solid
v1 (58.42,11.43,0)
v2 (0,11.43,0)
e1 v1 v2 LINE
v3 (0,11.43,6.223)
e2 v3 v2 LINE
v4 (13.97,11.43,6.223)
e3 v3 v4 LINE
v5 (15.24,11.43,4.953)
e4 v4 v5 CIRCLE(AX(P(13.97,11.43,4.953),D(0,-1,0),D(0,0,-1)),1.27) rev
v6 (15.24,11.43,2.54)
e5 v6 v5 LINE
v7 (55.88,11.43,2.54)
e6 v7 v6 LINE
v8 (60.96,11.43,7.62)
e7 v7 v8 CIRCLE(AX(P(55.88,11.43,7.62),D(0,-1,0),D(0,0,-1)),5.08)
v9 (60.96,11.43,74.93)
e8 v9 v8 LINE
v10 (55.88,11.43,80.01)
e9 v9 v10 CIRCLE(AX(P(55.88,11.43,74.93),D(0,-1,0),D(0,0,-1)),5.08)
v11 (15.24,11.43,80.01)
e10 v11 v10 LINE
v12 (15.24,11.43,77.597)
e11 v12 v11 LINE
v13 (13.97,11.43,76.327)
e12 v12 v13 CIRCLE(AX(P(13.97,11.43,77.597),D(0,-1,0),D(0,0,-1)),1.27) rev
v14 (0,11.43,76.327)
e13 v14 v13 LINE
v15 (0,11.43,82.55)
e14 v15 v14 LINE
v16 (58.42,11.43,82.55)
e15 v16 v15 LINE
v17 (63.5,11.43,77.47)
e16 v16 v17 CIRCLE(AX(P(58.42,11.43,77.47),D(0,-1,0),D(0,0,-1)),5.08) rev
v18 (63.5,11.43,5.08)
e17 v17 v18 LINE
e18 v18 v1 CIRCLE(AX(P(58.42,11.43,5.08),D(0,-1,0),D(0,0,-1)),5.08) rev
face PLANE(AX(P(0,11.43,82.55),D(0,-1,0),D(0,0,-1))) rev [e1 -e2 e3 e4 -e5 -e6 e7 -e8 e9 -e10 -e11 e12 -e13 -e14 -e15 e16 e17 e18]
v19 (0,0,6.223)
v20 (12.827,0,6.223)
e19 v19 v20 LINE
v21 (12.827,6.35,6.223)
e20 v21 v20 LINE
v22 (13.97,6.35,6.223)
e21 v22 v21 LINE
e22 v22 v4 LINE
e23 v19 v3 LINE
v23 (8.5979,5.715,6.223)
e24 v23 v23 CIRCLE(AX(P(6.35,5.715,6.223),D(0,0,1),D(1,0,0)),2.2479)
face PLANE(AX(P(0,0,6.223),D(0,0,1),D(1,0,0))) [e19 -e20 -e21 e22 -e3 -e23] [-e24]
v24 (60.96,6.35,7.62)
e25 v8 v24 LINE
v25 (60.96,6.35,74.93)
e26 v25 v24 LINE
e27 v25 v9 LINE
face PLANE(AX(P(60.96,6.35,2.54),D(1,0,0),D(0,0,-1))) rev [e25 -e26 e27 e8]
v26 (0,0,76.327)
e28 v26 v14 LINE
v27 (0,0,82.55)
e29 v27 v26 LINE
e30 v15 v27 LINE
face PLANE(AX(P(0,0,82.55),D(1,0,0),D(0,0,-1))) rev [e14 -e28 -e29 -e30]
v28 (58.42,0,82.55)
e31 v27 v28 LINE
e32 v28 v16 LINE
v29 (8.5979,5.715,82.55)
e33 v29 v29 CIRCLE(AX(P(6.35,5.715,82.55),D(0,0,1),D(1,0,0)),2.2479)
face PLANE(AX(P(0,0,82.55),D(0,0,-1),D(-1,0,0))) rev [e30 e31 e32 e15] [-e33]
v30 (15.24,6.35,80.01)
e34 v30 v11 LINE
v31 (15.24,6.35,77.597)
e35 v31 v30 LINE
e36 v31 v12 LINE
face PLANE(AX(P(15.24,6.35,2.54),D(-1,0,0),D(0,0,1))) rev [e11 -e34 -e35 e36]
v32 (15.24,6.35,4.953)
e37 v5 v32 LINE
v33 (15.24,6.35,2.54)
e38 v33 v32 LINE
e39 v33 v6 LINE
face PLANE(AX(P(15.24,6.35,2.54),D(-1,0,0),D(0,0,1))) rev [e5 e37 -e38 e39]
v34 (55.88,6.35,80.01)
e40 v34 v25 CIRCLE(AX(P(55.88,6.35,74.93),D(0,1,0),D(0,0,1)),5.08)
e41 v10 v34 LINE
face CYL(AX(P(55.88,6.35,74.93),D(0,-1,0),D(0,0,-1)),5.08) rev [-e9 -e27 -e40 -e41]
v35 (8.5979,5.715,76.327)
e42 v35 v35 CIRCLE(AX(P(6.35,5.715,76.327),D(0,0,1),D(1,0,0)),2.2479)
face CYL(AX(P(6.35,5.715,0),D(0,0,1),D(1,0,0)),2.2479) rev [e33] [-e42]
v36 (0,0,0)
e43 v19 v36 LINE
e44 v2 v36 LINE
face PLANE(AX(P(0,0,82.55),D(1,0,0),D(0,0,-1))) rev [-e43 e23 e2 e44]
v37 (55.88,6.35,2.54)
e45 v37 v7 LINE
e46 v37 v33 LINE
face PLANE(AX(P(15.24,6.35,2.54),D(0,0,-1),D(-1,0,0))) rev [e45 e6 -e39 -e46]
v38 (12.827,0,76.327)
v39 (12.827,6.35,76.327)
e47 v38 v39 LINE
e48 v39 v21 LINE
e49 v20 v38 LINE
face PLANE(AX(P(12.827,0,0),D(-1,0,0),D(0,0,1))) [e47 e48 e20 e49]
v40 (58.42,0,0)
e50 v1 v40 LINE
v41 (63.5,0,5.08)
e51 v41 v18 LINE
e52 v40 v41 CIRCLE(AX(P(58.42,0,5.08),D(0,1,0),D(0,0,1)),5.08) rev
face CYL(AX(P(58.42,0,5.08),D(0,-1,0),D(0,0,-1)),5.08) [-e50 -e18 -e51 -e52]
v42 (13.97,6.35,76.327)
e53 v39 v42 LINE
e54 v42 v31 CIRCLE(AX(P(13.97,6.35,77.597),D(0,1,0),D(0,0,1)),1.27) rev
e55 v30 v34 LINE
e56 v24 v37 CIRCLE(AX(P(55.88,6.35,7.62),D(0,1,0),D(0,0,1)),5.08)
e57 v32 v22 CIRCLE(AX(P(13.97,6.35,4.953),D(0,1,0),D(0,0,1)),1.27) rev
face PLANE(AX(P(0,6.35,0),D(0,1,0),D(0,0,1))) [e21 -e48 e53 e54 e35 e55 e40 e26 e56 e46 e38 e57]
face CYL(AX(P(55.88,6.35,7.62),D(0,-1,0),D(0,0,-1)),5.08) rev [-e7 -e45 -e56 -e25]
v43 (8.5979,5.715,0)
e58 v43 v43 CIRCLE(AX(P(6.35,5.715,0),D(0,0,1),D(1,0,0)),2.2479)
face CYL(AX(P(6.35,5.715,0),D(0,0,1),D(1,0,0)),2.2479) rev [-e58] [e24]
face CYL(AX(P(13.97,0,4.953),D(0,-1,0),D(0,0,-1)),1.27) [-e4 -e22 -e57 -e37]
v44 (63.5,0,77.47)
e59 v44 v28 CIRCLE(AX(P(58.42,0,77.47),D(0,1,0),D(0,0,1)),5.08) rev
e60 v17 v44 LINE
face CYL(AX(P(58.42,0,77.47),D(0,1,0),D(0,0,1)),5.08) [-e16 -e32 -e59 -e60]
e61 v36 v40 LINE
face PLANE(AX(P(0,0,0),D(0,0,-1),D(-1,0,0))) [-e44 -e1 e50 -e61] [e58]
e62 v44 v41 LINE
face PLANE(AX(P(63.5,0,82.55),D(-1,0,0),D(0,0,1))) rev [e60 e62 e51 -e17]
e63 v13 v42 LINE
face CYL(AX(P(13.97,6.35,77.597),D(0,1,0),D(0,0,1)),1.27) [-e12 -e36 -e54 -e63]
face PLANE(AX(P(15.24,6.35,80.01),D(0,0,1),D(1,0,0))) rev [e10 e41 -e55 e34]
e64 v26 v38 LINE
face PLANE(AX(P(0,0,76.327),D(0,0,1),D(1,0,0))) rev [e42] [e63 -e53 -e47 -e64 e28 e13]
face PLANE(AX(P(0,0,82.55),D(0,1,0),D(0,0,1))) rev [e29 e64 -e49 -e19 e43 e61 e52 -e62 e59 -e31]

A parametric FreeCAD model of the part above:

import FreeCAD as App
import Part
import Sketcher

V = App.Vector
Q = App.Units.Quantity


def edges_at(feature, points):
    """Names of the edges that pass closest to the given points."""
    edges = feature.Shape.Edges
    near = lambda p: min(range(len(edges)), key=lambda i: edges[i].distToShape(Part.Vertex(*p))[0])
    return sorted({f"Edge{near(p) + 1}" for p in points})

doc = App.newDocument("Part")
body = doc.addObject("PartDesign::Body", "Body")

sketch1 = body.newObject("Sketcher::SketchObject", "Sketch")
sketch1.AttachmentSupport = (doc.getObject("XY_Plane"), [""])
sketch1.MapMode = "FlatFace"
sketch1.addGeometry([
    Part.LineSegment(V(0, 11, 0), V(0, 0, 0)),
    Part.LineSegment(V(0, 0, 0), V(64, 0, 0)),
    Part.LineSegment(V(64, 0, 0), V(64, 11, 0)),
    Part.LineSegment(V(64, 11, 0), V(0, 11, 0)),
], False)
sketch1.addConstraint([
    Sketcher.Constraint("Coincident", 0, 2, 1, 1),
    Sketcher.Constraint("Coincident", 1, 2, 2, 1),
    Sketcher.Constraint("Coincident", 2, 2, 3, 1),
    Sketcher.Constraint("Coincident", 3, 2, 0, 1),
    Sketcher.Constraint("Vertical", 0),
    Sketcher.Constraint("Horizontal", 1),
    Sketcher.Constraint("Vertical", 2),
    Sketcher.Constraint("Horizontal", 3),
    Sketcher.Constraint("Coincident", 0, 2, -1, 1),
    Sketcher.Constraint("DistanceX", 1, 1, 1, 2, Q("2.5 in")),
    Sketcher.Constraint("DistanceY", 0, 2, 0, 1, Q("0.45 in")),
])
pad1 = body.newObject("PartDesign::Pad", "Pad")
pad1.Profile = sketch1
pad1.Length = Q("3.25 in")

sketch2 = body.newObject("Sketcher::SketchObject", "Sketch001")
sketch2.AttachmentSupport = (doc.getObject("XZ_Plane"), [""])
sketch2.MapMode = "FlatFace"
sketch2.AttachmentOffset = App.Placement(V(0, 0, -0.45 * 25.4), App.Rotation())
sketch2.addGeometry([
    Part.LineSegment(V(15, 3, 0), V(15, 80, 0)),
    Part.LineSegment(V(15, 80, 0), V(61, 80, 0)),
    Part.LineSegment(V(61, 80, 0), V(61, 3, 0)),
    Part.LineSegment(V(61, 3, 0), V(15, 3, 0)),
], False)
sketch2.addConstraint([
    Sketcher.Constraint("Coincident", 0, 2, 1, 1),
    Sketcher.Constraint("Coincident", 1, 2, 2, 1),
    Sketcher.Constraint("Coincident", 2, 2, 3, 1),
    Sketcher.Constraint("Coincident", 3, 2, 0, 1),
    Sketcher.Constraint("Vertical", 0),
    Sketcher.Constraint("Horizontal", 1),
    Sketcher.Constraint("Vertical", 2),
    Sketcher.Constraint("Horizontal", 3),
    Sketcher.Constraint("DistanceX", 1, 1, 1, 2, Q("1.8 in")),
    Sketcher.Constraint("DistanceY", 0, 1, 0, 2, Q("3.05 in")),
    Sketcher.Constraint("DistanceX", -1, 1, 0, 2, Q("0.6 in")),
    Sketcher.Constraint("DistanceY", -1, 1, 2, 2, Q("0.1 in")),
])
pocket1 = body.newObject("PartDesign::Pocket", "Pocket")
pocket1.Profile = sketch2
pocket1.Length = Q("0.2 in")
pocket1.Reversed = True

sketch3 = body.newObject("Sketcher::SketchObject", "Sketch002")
sketch3.AttachmentSupport = (doc.getObject("XZ_Plane"), [""])
sketch3.MapMode = "FlatFace"
sketch3.AttachmentOffset = App.Placement(V(0, 0, -0.45 * 25.4), App.Rotation())
sketch3.addGeometry([
    Part.LineSegment(V(0, 6, 0), V(0, 76, 0)),
    Part.LineSegment(V(0, 76, 0), V(13, 76, 0)),
    Part.LineSegment(V(13, 76, 0), V(13, 6, 0)),
    Part.LineSegment(V(13, 6, 0), V(0, 6, 0)),
], False)
sketch3.addConstraint([
    Sketcher.Constraint("Coincident", 0, 2, 1, 1),
    Sketcher.Constraint("Coincident", 1, 2, 2, 1),
    Sketcher.Constraint("Coincident", 2, 2, 3, 1),
    Sketcher.Constraint("Coincident", 3, 2, 0, 1),
    Sketcher.Constraint("Vertical", 0),
    Sketcher.Constraint("Horizontal", 1),
    Sketcher.Constraint("Vertical", 2),
    Sketcher.Constraint("Horizontal", 3),
    Sketcher.Constraint("PointOnObject", 0, 2, -2),
    Sketcher.Constraint("DistanceY", 0, 1, 0, 2, Q("2.76 in")),
    Sketcher.Constraint("DistanceX", 1, 1, 1, 2, Q("0.525 in")),
    Sketcher.Constraint("DistanceY", -1, 1, 0, 2, Q("3.005 in")),
])
pocket2 = body.newObject("PartDesign::Pocket", "Pocket001")
pocket2.Profile = sketch3
pocket2.Type = "ThroughAll"
pocket2.Reversed = True

sketch4 = body.newObject("Sketcher::SketchObject", "Sketch003")
sketch4.AttachmentSupport = (doc.getObject("XZ_Plane"), [""])
sketch4.MapMode = "FlatFace"
sketch4.AttachmentOffset = App.Placement(V(0, 0, -0.45 * 25.4), App.Rotation())
sketch4.addGeometry([
    Part.LineSegment(V(13.3, 6.2, 0), V(13.3, 76.3, 0)),
    Part.LineSegment(V(13.3, 76.3, 0), V(15.2, 76.3, 0)),
    Part.LineSegment(V(15.2, 76.3, 0), V(15.2, 6.2, 0)),
    Part.LineSegment(V(15.2, 6.2, 0), V(13.3, 6.2, 0)),
], False)
sketch4.addConstraint([
    Sketcher.Constraint("Coincident", 0, 2, 1, 1),
    Sketcher.Constraint("Coincident", 1, 2, 2, 1),
    Sketcher.Constraint("Coincident", 2, 2, 3, 1),
    Sketcher.Constraint("Coincident", 3, 2, 0, 1),
    Sketcher.Constraint("Vertical", 0),
    Sketcher.Constraint("Horizontal", 1),
    Sketcher.Constraint("Vertical", 2),
    Sketcher.Constraint("Horizontal", 3),
    Sketcher.Constraint("DistanceY", 0, 1, 0, 2, Q("2.76 in")),
    Sketcher.Constraint("DistanceX", -1, 1, 1, 2, Q("0.6 in")),
    Sketcher.Constraint("DistanceX", 1, 1, 1, 2, Q("0.075 in")),
    Sketcher.Constraint("DistanceY", -1, 1, 0, 2, Q("3.005 in")),
])
pocket3 = body.newObject("PartDesign::Pocket", "Pocket002")
pocket3.Profile = sketch4
pocket3.Length = Q("0.2 in")
pocket3.Reversed = True
doc.recompute()

fillet = body.newObject("PartDesign::Fillet", "Fillet")
fillet.Base = (pocket3, edges_at(pocket3, [(60.96, 8.89, 2.54), (60.96, 8.89, 80.01)]))
fillet.Radius = Q("0.2 in")
doc.recompute()

fillet2 = body.newObject("PartDesign::Fillet", "Fillet001")
fillet2.Base = (fillet, edges_at(fillet, [(63.5, 5.715, 82.55), (63.5, 5.715, 0)]))
fillet2.Radius = Q("0.2 in")
doc.recompute()

fillet3 = body.newObject("PartDesign::Fillet", "Fillet002")
fillet3.Base = (fillet2, edges_at(fillet2, [(15.24, 8.89, 6.223), (15.24, 8.89, 76.327)]))
fillet3.Radius = Q("0.05 in")

sketch5 = body.newObject("Sketcher::SketchObject", "Sketch004")
sketch5.AttachmentSupport = (doc.getObject("XY_Plane"), [""])
sketch5.MapMode = "FlatFace"
sketch5.AttachmentOffset = App.Placement(V(0, 0, 3.25 * 25.4), App.Rotation())
sketch5.addGeometry(Part.Circle(V(6.3, 5.7, 0), V(0, 0, 1), 2.2), False)
sketch5.addConstraint([
    Sketcher.Constraint("Diameter", 0, Q("0.177 in")),
    Sketcher.Constraint("DistanceX", -1, 1, 0, 3, Q("0.25 in")),
    Sketcher.Constraint("DistanceY", -1, 1, 0, 3, Q("0.225 in")),
])
pocket4 = body.newObject("PartDesign::Pocket", "Pocket003")
pocket4.Profile = sketch5
pocket4.Type = "ThroughAll"

sketch6 = body.newObject("Sketcher::SketchObject", "Sketch005")
sketch6.AttachmentSupport = (doc.getObject("YZ_Plane"), [""])
sketch6.MapMode = "FlatFace"
sketch6.AttachmentOffset = App.Placement(V(0, 0, 0.525 * 25.4), App.Rotation())
sketch6.addGeometry([
    Part.LineSegment(V(6, 6, 0), V(0, 6, 0)),
    Part.LineSegment(V(0, 6, 0), V(0, 76, 0)),
    Part.LineSegment(V(0, 76, 0), V(6, 76, 0)),
    Part.LineSegment(V(6, 76, 0), V(6, 6, 0)),
], False)
sketch6.addConstraint([
    Sketcher.Constraint("Coincident", 0, 2, 1, 1),
    Sketcher.Constraint("Coincident", 1, 2, 2, 1),
    Sketcher.Constraint("Coincident", 2, 2, 3, 1),
    Sketcher.Constraint("Coincident", 3, 2, 0, 1),
    Sketcher.Constraint("Horizontal", 0),
    Sketcher.Constraint("Vertical", 1),
    Sketcher.Constraint("Horizontal", 2),
    Sketcher.Constraint("Vertical", 3),
    Sketcher.Constraint("PointOnObject", 0, 2, -2),
    Sketcher.Constraint("DistanceX", 0, 2, 0, 1, Q("0.25 in")),
    Sketcher.Constraint("DistanceY", 1, 1, 1, 2, Q("2.76 in")),
    Sketcher.Constraint("DistanceY", -1, 1, 0, 2, Q("0.245 in")),
])
pad2 = body.newObject("PartDesign::Pad", "Pad001")
pad2.Profile = sketch6
pad2.Length = Q("0.02 in")
pad2.Reversed = True

doc.recompute()
